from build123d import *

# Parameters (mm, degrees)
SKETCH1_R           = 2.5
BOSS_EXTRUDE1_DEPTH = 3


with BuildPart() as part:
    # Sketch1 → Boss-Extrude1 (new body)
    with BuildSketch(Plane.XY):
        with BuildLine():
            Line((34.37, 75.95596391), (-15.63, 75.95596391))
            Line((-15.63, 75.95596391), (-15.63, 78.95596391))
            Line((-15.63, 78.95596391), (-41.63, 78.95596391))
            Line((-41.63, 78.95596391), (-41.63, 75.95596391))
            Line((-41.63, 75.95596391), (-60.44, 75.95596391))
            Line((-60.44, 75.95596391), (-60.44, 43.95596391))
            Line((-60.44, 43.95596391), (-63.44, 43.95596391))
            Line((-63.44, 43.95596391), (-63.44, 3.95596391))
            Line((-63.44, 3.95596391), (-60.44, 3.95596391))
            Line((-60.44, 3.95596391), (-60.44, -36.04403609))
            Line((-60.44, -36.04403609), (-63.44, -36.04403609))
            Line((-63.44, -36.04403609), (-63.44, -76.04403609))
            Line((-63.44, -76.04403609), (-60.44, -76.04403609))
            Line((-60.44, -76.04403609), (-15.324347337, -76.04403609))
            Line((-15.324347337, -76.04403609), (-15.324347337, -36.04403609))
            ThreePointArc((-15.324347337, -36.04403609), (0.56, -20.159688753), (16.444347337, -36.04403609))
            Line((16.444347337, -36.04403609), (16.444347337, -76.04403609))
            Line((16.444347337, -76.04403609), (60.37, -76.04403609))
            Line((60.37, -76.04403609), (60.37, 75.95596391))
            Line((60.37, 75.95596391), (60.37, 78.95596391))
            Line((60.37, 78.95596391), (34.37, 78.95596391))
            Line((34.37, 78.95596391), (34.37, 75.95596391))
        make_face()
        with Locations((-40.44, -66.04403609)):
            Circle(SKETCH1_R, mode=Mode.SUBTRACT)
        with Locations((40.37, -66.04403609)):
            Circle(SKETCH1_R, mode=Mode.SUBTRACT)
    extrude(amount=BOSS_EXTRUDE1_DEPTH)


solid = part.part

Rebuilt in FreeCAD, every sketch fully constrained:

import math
import FreeCAD as App
import Part
import Sketcher
from FreeCAD import Vector

doc = App.newDocument("Part")
params = doc.addObject("Spreadsheet::Sheet", "Params")
for row, (alias, value) in enumerate([
    ("sketch1_diameter", "5 mm"),
    ("sketch1_width", "50 mm"),
    ("sketch1_width2", "26 mm"),
    ("sketch1_width3", "3 mm"),
    ("sketch1_height", "32 mm"),
    ("pad1_length", "3 mm"),
], start=1):
    params.set(f"A{row}", alias)
    params.set(f"B{row}", "=" + value)
    params.setAlias(f"B{row}", alias)

body = doc.addObject("PartDesign::Body", "Body")

sketch1 = doc.addObject("Sketcher::SketchObject", "Sketch")
body.addObject(sketch1)
sketch1.AttachmentSupport = (doc.XY_Plane, [""])
sketch1.MapMode = "FlatFace"
sketch1.addGeometry([
    Part.LineSegment(Vector(34.4, 76, 0), Vector(-15.6, 76, 0)),
    Part.LineSegment(Vector(-15.6, 76, 0), Vector(-15.6, 79, 0)),
    Part.LineSegment(Vector(-15.6, 79, 0), Vector(-41.6, 79, 0)),
    Part.LineSegment(Vector(-41.6, 79, 0), Vector(-41.6, 76, 0)),
    Part.LineSegment(Vector(-41.6, 76, 0), Vector(-60.4, 76, 0)),
    Part.LineSegment(Vector(-60.4, 76, 0), Vector(-60.4, 44, 0)),
    Part.LineSegment(Vector(-60.4, 44, 0), Vector(-63.4, 44, 0)),
    Part.LineSegment(Vector(-63.4, 44, 0), Vector(-63.4, 4, 0)),
    Part.LineSegment(Vector(-63.4, 4, 0), Vector(-60.4, 4, 0)),
    Part.LineSegment(Vector(-60.4, 4, 0), Vector(-60.4, -36, 0)),
    Part.LineSegment(Vector(-60.4, -36, 0), Vector(-63.4, -36, 0)),
    Part.LineSegment(Vector(-63.4, -36, 0), Vector(-63.4, -76, 0)),
    Part.LineSegment(Vector(-63.4, -76, 0), Vector(-15.3, -76, 0)),
    Part.LineSegment(Vector(-15.3, -76, 0), Vector(-15.3, -36, 0)),
    Part.ArcOfCircle(Part.Circle(Vector(0.6, -36, 0), Vector(0, 0, 1), 15.9), math.radians(0), math.radians(180)),
    Part.LineSegment(Vector(16.4, -36, 0), Vector(16.4, -76, 0)),
    Part.LineSegment(Vector(16.4, -76, 0), Vector(60.4, -76, 0)),
    Part.LineSegment(Vector(60.4, -76, 0), Vector(60.4, 79, 0)),
    Part.LineSegment(Vector(60.4, 79, 0), Vector(34.4, 79, 0)),
    Part.LineSegment(Vector(34.4, 79, 0), Vector(34.4, 76, 0)),
    Part.Circle(Vector(-40.4, -66, 0), Vector(0, 0, 1), 2.5),
    Part.Circle(Vector(40.4, -66, 0), Vector(0, 0, 1), 2.5),
], False)
sketch1.addConstraint([
    Sketcher.Constraint("Coincident", 0, 2, 1, 1),
    Sketcher.Constraint("Coincident", 1, 2, 2, 1),
    Sketcher.Constraint("Coincident", 2, 2, 3, 1),
    Sketcher.Constraint("Coincident", 3, 2, 4, 1),
    Sketcher.Constraint("Coincident", 4, 2, 5, 1),
    Sketcher.Constraint("Coincident", 5, 2, 6, 1),
    Sketcher.Constraint("Coincident", 6, 2, 7, 1),
    Sketcher.Constraint("Coincident", 7, 2, 8, 1),
    Sketcher.Constraint("Coincident", 8, 2, 9, 1),
    Sketcher.Constraint("Coincident", 9, 2, 10, 1),
    Sketcher.Constraint("Coincident", 10, 2, 11, 1),
    Sketcher.Constraint("Coincident", 11, 2, 12, 1),
    Sketcher.Constraint("Coincident", 12, 2, 13, 1),
    Sketcher.Constraint("Tangent", 13, 2, 14, 2),
    Sketcher.Constraint("Tangent", 14, 1, 15, 1),
    Sketcher.Constraint("Coincident", 15, 2, 16, 1),
    Sketcher.Constraint("Coincident", 16, 2, 17, 1),
    Sketcher.Constraint("Coincident", 17, 2, 18, 1),
    Sketcher.Constraint("Coincident", 18, 2, 19, 1),
    Sketcher.Constraint("Coincident", 19, 2, 0, 1),
    Sketcher.Constraint("Horizontal", 0),
    Sketcher.Constraint("Vertical", 1),
    Sketcher.Constraint("Horizontal", 2),
    Sketcher.Constraint("Vertical", 3),
    Sketcher.Constraint("Horizontal", 4),
    Sketcher.Constraint("Vertical", 5),
    Sketcher.Constraint("Horizontal", 6),
    Sketcher.Constraint("Vertical", 7),
    Sketcher.Constraint("Horizontal", 8),
    Sketcher.Constraint("Vertical", 9),
    Sketcher.Constraint("Horizontal", 10),
    Sketcher.Constraint("Vertical", 11),
    Sketcher.Constraint("Horizontal", 12),
    Sketcher.Constraint("Vertical", 13),
    Sketcher.Constraint("Vertical", 15),
    Sketcher.Constraint("Horizontal", 16),
    Sketcher.Constraint("Vertical", 17),
    Sketcher.Constraint("Horizontal", 18),
    Sketcher.Constraint("Vertical", 19),
    Sketcher.Constraint("Equal", 20, 21),
    Sketcher.Constraint("Horizontal", 20, 3, 21, 3),
    Sketcher.Constraint("Horizontal", 0, 2, 3, 2),
    Sketcher.Constraint("Horizontal", 14, 3, 9, 2),
    Sketcher.Constraint("Horizontal", 12, 2, 15, 2),
    Sketcher.Constraint("Horizontal", 2, 2, 17, 2),
    Sketcher.Constraint("Vertical", 5, 2, 8, 2),
    Sketcher.Constraint("Vertical", 7, 2, 10, 2),
    Sketcher.Constraint("Equal", 2, 18),
    Sketcher.Constraint("Equal", 10, 1),
    Sketcher.Constraint("Equal", 7, 9),
    Sketcher.Constraint("Equal", 9, 11),
    Sketcher.Constraint("Diameter", 20, 5.0),
    Sketcher.Constraint("DistanceX", 0, 2, 0, 1, 50.0),
    Sketcher.Constraint("DistanceX", 2, 2, 2, 1, 26.0),
    Sketcher.Constraint("DistanceX", 6, 2, 6, 1, 3.0),
    Sketcher.Constraint("DistanceY", 5, 2, 5, 1, 32.0),
    Sketcher.Constraint("DistanceY", 7, 2, 7, 1, 40.0),
    Sketcher.Constraint("DistanceX", 20, 3, 14, 3, 41.0),
    Sketcher.Constraint("DistanceY", 20, 3, 14, 3, 30.0),
    Sketcher.Constraint("DistanceX", 0, 2, 21, 3, 56.0),
    Sketcher.Constraint("DistanceX", 4, 2, 14, 3, 61.0),
    Sketcher.Constraint("DistanceX", 4, 2, 4, 1, 18.81),
    Sketcher.Constraint("DistanceX", -1, 1, 14, 3, 0.56),
    Sketcher.Constraint("Radius", 14, 15.884347),
    Sketcher.Constraint("DistanceY", 14, 3, -1, 1, 36.044036),
])
sketch1.setExpression("Constraints[51]", "Params.sketch1_diameter")
sketch1.setExpression("Constraints[52]", "Params.sketch1_width")
sketch1.setExpression("Constraints[53]", "Params.sketch1_width2")
sketch1.setExpression("Constraints[54]", "Params.sketch1_width3")
sketch1.setExpression("Constraints[55]", "Params.sketch1_height")
pad1 = doc.addObject("PartDesign::Pad", "Pad")
body.addObject(pad1)
pad1.Profile = sketch1
pad1.setExpression("Length", "Params.pad1_length")

doc.recompute()
